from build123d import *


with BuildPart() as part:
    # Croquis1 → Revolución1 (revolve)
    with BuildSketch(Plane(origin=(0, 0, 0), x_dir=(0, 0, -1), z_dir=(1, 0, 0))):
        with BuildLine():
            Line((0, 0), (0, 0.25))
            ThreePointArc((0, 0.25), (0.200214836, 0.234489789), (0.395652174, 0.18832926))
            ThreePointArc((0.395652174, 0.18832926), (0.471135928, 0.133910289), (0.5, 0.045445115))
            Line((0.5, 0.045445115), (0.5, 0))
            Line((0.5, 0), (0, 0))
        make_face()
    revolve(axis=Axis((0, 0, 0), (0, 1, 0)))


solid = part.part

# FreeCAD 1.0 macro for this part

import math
import FreeCAD as App
import Part
import Sketcher
from FreeCAD import Vector
Q = App.Units.Quantity

doc = App.newDocument("Part")
body = doc.addObject("PartDesign::Body", "Body")

sketch1 = body.newObject("Sketcher::SketchObject", "Sketch")
sketch1.AttachmentSupport = (doc.getObject("YZ_Plane"), [""])
sketch1.MapMode = "FlatFace"
sketch1.addGeometry([
    Part.LineSegment(Vector(0.25, 0, 0), Vector(0, 0, 0)),
    Part.LineSegment(Vector(0, 0, 0), Vector(0, -0.5, 0)),
    Part.LineSegment(Vector(0, -0.5, 0), Vector(0.045445, -0.5, 0)),
    Part.ArcOfCircle(Part.Circle(Vector(0.045445, -0.35, 0), Vector(0, 0, 1), 0.15), math.radians(-90), math.radians(-17.718931)),
    Part.ArcOfCircle(Part.Circle(Vector(-1.05, 0, 0), Vector(0, 0, 1), 1.3), math.radians(-17.718932), math.radians(0)),
], False)
sketch1.addConstraint([
    Sketcher.Constraint("Coincident", 0, 2, 1, 1),
    Sketcher.Constraint("Coincident", 1, 2, 2, 1),
    Sketcher.Constraint("Tangent", 2, 2, 3, 1),
    Sketcher.Constraint("Tangent", 3, 2, 4, 1),
    Sketcher.Constraint("Coincident", 4, 2, 0, 1),
    Sketcher.Constraint("Horizontal", 0),
    Sketcher.Constraint("Vertical", 1),
    Sketcher.Constraint("Horizontal", 2),
    Sketcher.Constraint("Coincident", 0, 2, -1, 1),
    Sketcher.Constraint("PointOnObject", 4, 3, -1),
    Sketcher.Constraint("Radius", 4, Q("1.3 mm")),
    Sketcher.Constraint("Radius", 3, Q("0.15 mm")),
    Sketcher.Constraint("DistanceY", 1, 2, 1, 1, Q("0.5 mm")),
    Sketcher.Constraint("DistanceX", 0, 2, 0, 1, Q("0.25 mm")),
])
revolution = body.newObject("PartDesign::Revolution", "Revolution")
revolution.Profile = sketch1
revolution.ReferenceAxis = (sketch1, ["H_Axis"])
revolution.Angle = 360

doc.recompute()
